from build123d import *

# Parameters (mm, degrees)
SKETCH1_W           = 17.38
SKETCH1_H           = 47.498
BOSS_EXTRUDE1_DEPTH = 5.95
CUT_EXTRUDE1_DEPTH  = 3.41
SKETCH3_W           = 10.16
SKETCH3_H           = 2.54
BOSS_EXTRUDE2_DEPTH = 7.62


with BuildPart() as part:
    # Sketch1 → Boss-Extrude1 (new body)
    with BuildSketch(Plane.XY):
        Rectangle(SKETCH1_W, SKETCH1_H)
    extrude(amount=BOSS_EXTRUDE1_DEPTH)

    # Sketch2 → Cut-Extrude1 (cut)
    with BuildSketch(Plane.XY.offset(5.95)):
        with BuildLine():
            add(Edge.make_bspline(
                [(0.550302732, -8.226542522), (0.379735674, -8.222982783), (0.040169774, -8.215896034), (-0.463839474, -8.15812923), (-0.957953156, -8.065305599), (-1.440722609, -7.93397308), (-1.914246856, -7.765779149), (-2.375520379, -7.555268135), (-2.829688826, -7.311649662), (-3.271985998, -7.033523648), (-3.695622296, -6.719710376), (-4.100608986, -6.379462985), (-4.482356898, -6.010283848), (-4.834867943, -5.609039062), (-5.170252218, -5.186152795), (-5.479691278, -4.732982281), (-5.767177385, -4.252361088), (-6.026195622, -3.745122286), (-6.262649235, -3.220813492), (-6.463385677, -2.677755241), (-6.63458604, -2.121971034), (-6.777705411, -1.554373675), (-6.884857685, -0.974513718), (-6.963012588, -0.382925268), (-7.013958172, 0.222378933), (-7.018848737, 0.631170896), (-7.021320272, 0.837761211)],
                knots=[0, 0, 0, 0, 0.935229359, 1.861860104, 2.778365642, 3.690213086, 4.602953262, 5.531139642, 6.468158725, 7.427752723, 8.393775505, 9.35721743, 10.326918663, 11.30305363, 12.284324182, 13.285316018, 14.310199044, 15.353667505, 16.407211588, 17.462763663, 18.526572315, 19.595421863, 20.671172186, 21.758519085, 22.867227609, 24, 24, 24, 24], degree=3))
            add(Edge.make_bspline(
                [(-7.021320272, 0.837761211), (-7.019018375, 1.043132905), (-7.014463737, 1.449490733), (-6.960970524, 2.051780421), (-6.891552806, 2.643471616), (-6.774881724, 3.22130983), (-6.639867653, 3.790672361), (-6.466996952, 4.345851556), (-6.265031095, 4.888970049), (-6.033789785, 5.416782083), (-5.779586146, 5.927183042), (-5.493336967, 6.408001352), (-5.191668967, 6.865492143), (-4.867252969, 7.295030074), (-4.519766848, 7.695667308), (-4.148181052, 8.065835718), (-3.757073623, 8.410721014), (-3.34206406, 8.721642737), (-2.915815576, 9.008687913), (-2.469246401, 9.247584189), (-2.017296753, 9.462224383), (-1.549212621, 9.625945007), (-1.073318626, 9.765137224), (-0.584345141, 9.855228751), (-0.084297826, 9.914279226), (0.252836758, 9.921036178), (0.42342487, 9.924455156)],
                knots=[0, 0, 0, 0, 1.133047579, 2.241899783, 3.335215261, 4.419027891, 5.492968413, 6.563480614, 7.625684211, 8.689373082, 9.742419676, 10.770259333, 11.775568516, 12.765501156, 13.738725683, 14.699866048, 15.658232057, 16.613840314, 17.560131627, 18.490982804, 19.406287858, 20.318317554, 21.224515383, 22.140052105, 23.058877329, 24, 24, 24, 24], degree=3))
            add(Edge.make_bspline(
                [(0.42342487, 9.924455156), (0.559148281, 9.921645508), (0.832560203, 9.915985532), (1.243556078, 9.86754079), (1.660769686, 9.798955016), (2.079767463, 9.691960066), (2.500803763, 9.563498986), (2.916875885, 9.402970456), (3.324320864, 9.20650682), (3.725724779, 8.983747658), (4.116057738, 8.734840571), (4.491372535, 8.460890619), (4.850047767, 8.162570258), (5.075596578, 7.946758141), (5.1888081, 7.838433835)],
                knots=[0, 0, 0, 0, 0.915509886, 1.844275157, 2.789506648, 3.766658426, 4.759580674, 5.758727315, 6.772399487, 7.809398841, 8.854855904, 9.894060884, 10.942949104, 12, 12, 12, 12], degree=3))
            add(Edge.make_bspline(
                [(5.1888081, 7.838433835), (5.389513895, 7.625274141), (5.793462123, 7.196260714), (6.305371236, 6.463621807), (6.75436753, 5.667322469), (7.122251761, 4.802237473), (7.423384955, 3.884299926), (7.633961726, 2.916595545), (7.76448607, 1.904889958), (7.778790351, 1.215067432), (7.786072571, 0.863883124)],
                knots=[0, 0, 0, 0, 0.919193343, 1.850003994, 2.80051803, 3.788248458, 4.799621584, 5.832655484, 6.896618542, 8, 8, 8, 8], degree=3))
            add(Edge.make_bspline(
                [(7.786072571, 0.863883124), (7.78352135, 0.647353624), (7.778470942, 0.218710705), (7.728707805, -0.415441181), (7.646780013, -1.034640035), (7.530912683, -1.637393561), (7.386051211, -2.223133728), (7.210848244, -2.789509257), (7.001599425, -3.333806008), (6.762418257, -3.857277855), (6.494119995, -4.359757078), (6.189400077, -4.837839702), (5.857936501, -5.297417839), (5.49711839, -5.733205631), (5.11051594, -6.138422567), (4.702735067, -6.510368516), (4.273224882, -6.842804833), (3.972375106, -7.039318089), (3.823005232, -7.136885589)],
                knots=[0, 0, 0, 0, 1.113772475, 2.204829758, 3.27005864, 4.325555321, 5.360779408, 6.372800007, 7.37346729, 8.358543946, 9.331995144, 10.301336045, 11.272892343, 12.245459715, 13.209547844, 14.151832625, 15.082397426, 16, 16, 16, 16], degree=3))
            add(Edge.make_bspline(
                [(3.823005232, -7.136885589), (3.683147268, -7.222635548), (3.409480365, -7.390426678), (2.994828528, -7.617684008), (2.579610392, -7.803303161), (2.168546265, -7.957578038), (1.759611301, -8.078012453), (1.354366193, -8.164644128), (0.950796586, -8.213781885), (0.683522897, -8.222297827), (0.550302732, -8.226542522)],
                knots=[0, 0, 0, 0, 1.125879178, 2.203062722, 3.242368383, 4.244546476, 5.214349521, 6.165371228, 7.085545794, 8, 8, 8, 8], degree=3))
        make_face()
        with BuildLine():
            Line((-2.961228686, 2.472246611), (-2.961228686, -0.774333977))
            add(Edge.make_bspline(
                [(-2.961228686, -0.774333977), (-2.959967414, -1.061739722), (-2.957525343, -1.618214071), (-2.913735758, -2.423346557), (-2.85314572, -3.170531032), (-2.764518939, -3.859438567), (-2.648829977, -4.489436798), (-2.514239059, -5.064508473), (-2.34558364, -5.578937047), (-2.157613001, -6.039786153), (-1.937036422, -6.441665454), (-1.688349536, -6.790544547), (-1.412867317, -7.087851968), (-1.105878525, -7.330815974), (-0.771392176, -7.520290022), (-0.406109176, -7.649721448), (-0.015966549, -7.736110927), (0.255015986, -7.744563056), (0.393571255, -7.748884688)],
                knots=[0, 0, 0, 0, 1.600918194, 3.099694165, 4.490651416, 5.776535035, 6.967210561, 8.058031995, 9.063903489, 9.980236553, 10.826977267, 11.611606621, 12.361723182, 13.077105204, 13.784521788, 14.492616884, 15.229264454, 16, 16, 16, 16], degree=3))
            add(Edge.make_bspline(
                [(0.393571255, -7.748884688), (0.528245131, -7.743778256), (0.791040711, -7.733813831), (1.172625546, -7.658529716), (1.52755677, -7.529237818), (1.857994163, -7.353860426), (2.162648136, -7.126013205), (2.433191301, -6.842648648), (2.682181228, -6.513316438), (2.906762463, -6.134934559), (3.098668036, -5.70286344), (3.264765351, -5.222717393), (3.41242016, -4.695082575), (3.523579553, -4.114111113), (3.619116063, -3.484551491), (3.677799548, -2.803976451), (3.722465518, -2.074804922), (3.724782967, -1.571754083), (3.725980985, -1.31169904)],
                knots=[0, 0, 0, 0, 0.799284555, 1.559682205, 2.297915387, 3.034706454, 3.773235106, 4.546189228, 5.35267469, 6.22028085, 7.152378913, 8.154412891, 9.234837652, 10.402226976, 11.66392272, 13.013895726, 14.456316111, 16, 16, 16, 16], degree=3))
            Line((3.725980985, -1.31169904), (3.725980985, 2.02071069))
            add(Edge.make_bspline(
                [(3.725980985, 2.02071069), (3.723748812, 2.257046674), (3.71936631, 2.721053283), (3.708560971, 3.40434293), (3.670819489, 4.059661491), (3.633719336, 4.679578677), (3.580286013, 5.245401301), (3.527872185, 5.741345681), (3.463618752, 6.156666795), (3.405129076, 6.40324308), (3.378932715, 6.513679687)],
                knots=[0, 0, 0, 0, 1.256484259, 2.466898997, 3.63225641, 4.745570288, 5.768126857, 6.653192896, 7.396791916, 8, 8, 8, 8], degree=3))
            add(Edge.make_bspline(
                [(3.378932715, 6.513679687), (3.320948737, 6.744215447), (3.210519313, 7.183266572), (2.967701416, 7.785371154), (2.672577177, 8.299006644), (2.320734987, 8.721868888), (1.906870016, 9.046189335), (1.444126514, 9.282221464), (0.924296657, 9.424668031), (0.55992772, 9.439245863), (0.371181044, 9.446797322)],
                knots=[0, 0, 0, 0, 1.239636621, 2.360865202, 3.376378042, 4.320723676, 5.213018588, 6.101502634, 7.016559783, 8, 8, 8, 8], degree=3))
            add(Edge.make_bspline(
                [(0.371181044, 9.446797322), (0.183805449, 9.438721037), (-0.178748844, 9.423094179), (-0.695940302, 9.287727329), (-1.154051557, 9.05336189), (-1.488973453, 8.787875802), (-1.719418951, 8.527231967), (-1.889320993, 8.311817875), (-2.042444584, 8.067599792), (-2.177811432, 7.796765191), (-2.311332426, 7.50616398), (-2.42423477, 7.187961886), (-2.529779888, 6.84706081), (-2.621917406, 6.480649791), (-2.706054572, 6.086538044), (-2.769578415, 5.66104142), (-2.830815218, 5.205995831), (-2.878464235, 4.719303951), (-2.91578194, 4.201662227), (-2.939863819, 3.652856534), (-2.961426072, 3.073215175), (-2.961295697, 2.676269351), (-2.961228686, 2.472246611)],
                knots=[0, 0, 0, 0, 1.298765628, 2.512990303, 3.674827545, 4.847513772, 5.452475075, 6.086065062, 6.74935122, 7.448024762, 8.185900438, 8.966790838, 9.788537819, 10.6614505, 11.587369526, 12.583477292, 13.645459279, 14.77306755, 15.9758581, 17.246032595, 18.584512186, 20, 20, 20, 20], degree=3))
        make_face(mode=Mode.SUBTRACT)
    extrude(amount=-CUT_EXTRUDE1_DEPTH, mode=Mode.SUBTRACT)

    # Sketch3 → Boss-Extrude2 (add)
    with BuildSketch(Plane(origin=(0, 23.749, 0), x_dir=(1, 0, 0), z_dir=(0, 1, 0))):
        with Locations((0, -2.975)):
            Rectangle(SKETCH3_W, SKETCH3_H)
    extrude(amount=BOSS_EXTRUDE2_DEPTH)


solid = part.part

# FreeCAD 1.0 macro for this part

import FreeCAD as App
import Part
import Sketcher
from FreeCAD import Vector
Q = App.Units.Quantity

doc = App.newDocument("Part")
body = doc.addObject("PartDesign::Body", "Body")

sketch1 = body.newObject("Sketcher::SketchObject", "Sketch")
sketch1.AttachmentSupport = (doc.getObject("XY_Plane"), [""])
sketch1.MapMode = "FlatFace"
sketch1.addGeometry([
    Part.LineSegment(Vector(-9, 24, 0), Vector(-9, -24, 0)),
    Part.LineSegment(Vector(-9, -24, 0), Vector(9, -24, 0)),
    Part.LineSegment(Vector(9, -24, 0), Vector(9, 24, 0)),
    Part.LineSegment(Vector(9, 24, 0), Vector(-9, 24, 0)),
], False)
sketch1.addConstraint([
    Sketcher.Constraint("Coincident", 0, 2, 1, 1),
    Sketcher.Constraint("Coincident", 1, 2, 2, 1),
    Sketcher.Constraint("Coincident", 2, 2, 3, 1),
    Sketcher.Constraint("Coincident", 3, 2, 0, 1),
    Sketcher.Constraint("Vertical", 0),
    Sketcher.Constraint("Horizontal", 1),
    Sketcher.Constraint("Vertical", 2),
    Sketcher.Constraint("Horizontal", 3),
    Sketcher.Constraint("Symmetric", 0, 2, 2, 2, -1, 1),
    Sketcher.Constraint("DistanceY", 0, 2, 0, 1, Q("1.87 in")),
    Sketcher.Constraint("DistanceX", 1, 1, 1, 2, Q("17.38 mm")),
])
pad1 = body.newObject("PartDesign::Pad", "Pad")
pad1.Profile = sketch1
pad1.Length = 5.95

sketch2 = body.newObject("Sketcher::SketchObject", "Sketch001")
sketch2.AttachmentSupport = (doc.getObject("XY_Plane"), [""])
sketch2.MapMode = "FlatFace"
sketch2.AttachmentOffset = App.Placement(Vector(0, 0, 5.95), App.Rotation())
sketch2.addGeometry([
    Part.BSplineCurve([Vector(0.550303, -8.226543, 0), Vector(0.379736, -8.222983, 0), Vector(0.04017, -8.215896, 0), Vector(-0.463839, -8.158129, 0), Vector(-0.957953, -8.065306, 0), Vector(-1.440723, -7.933973, 0), Vector(-1.914247, -7.765779, 0), Vector(-2.37552, -7.555268, 0), Vector(-2.829689, -7.31165, 0), Vector(-3.271986, -7.033524, 0), Vector(-3.695622, -6.71971, 0), Vector(-4.100609, -6.379463, 0), Vector(-4.482357, -6.010284, 0), Vector(-4.834868, -5.609039, 0), Vector(-5.170252, -5.186153, 0), Vector(-5.479691, -4.732982, 0), Vector(-5.767177, -4.252361, 0), Vector(-6.026196, -3.745122, 0), Vector(-6.262649, -3.220813, 0), Vector(-6.463386, -2.677755, 0), Vector(-6.634586, -2.121971, 0), Vector(-6.777705, -1.554374, 0), Vector(-6.884858, -0.974514, 0), Vector(-6.963013, -0.382925, 0), Vector(-7.013958, 0.222379, 0), Vector(-7.018849, 0.631171, 0), Vector(-7.02132, 0.837761, 0)], [4, 1, 1, 1, 1, 1, 1, 1, 1, 1, 1, 1, 1, 1, 1, 1, 1, 1, 1, 1, 1, 1, 1, 1, 4], [0, 0.935229359, 1.861860104, 2.778365642, 3.690213086, 4.602953262, 5.531139642, 6.468158725, 7.427752723, 8.393775505, 9.35721743, 10.326918663, 11.30305363, 12.284324182, 13.285316018, 14.310199044, 15.353667505, 16.407211588, 17.462763663, 18.526572315, 19.595421863, 20.671172186, 21.758519085, 22.867227609, 24], False, 3, [1, 1, 1, 1, 1, 1, 1, 1, 1, 1, 1, 1, 1, 1, 1, 1, 1, 1, 1, 1, 1, 1, 1, 1, 1, 1, 1], False),
    Part.BSplineCurve([Vector(3.823005, -7.136886, 0), Vector(3.683147, -7.222636, 0), Vector(3.40948, -7.390427, 0), Vector(2.994829, -7.617684, 0), Vector(2.57961, -7.803303, 0), Vector(2.168546, -7.957578, 0), Vector(1.759611, -8.078012, 0), Vector(1.354366, -8.164644, 0), Vector(0.950797, -8.213782, 0), Vector(0.683523, -8.222298, 0), Vector(0.550303, -8.226543, 0)], [4, 1, 1, 1, 1, 1, 1, 1, 4], [0, 1.125879178, 2.203062722, 3.242368383, 4.244546476, 5.214349521, 6.165371228, 7.085545794, 8], False, 3, [1, 1, 1, 1, 1, 1, 1, 1, 1, 1, 1], False),
    Part.BSplineCurve([Vector(7.786073, 0.863883, 0), Vector(7.783521, 0.647354, 0), Vector(7.778471, 0.218711, 0), Vector(7.728708, -0.415441, 0), Vector(7.64678, -1.03464, 0), Vector(7.530913, -1.637394, 0), Vector(7.386051, -2.223134, 0), Vector(7.210848, -2.789509, 0), Vector(7.001599, -3.333806, 0), Vector(6.762418, -3.857278, 0), Vector(6.49412, -4.359757, 0), Vector(6.1894, -4.83784, 0), Vector(5.857937, -5.297418, 0), Vector(5.497118, -5.733206, 0), Vector(5.110516, -6.138423, 0), Vector(4.702735, -6.510369, 0), Vector(4.273225, -6.842805, 0), Vector(3.972375, -7.039318, 0), Vector(3.823005, -7.136886, 0)], [4, 1, 1, 1, 1, 1, 1, 1, 1, 1, 1, 1, 1, 1, 1, 1, 4], [0, 1.113772475, 2.204829758, 3.27005864, 4.325555321, 5.360779408, 6.372800007, 7.37346729, 8.358543946, 9.331995144, 10.301336045, 11.272892343, 12.245459715, 13.209547844, 14.151832625, 15.082397426, 16], False, 3, [1, 1, 1, 1, 1, 1, 1, 1, 1, 1, 1, 1, 1, 1, 1, 1, 1, 1, 1], False),
    Part.BSplineCurve([Vector(5.188808, 7.838434, 0), Vector(5.389514, 7.625274, 0), Vector(5.793462, 7.196261, 0), Vector(6.305371, 6.463622, 0), Vector(6.754368, 5.667322, 0), Vector(7.122252, 4.802237, 0), Vector(7.423385, 3.8843, 0), Vector(7.633962, 2.916596, 0), Vector(7.764486, 1.90489, 0), Vector(7.77879, 1.215067, 0), Vector(7.786073, 0.863883, 0)], [4, 1, 1, 1, 1, 1, 1, 1, 4], [0, 0.919193343, 1.850003994, 2.80051803, 3.788248458, 4.799621584, 5.832655484, 6.896618542, 8], False, 3, [1, 1, 1, 1, 1, 1, 1, 1, 1, 1, 1], False),
    Part.BSplineCurve([Vector(0.423425, 9.924455, 0), Vector(0.559148, 9.921646, 0), Vector(0.83256, 9.915986, 0), Vector(1.243556, 9.867541, 0), Vector(1.66077, 9.798955, 0), Vector(2.079767, 9.69196, 0), Vector(2.500804, 9.563499, 0), Vector(2.916876, 9.40297, 0), Vector(3.324321, 9.206507, 0), Vector(3.725725, 8.983748, 0), Vector(4.116058, 8.734841, 0), Vector(4.491373, 8.460891, 0), Vector(4.850048, 8.16257, 0), Vector(5.075597, 7.946758, 0), Vector(5.188808, 7.838434, 0)], [4, 1, 1, 1, 1, 1, 1, 1, 1, 1, 1, 1, 4], [0, 0.915509886, 1.844275157, 2.789506648, 3.766658426, 4.759580674, 5.758727315, 6.772399487, 7.809398841, 8.854855904, 9.894060884, 10.942949104, 12], False, 3, [1, 1, 1, 1, 1, 1, 1, 1, 1, 1, 1, 1, 1, 1, 1], False),
    Part.BSplineCurve([Vector(-7.02132, 0.837761, 0), Vector(-7.019018, 1.043133, 0), Vector(-7.014464, 1.449491, 0), Vector(-6.960971, 2.05178, 0), Vector(-6.891553, 2.643472, 0), Vector(-6.774882, 3.22131, 0), Vector(-6.639868, 3.790672, 0), Vector(-6.466997, 4.345852, 0), Vector(-6.265031, 4.88897, 0), Vector(-6.03379, 5.416782, 0), Vector(-5.779586, 5.927183, 0), Vector(-5.493337, 6.408001, 0), Vector(-5.191669, 6.865492, 0), Vector(-4.867253, 7.29503, 0), Vector(-4.519767, 7.695667, 0), Vector(-4.148181, 8.065836, 0), Vector(-3.757074, 8.410721, 0), Vector(-3.342064, 8.721643, 0), Vector(-2.915816, 9.008688, 0), Vector(-2.469246, 9.247584, 0), Vector(-2.017297, 9.462224, 0), Vector(-1.549213, 9.625945, 0), Vector(-1.073319, 9.765137, 0), Vector(-0.584345, 9.855229, 0), Vector(-0.084298, 9.914279, 0), Vector(0.252837, 9.921036, 0), Vector(0.423425, 9.924455, 0)], [4, 1, 1, 1, 1, 1, 1, 1, 1, 1, 1, 1, 1, 1, 1, 1, 1, 1, 1, 1, 1, 1, 1, 1, 4], [0, 1.133047579, 2.241899783, 3.335215261, 4.419027891, 5.492968413, 6.563480614, 7.625684211, 8.689373082, 9.742419676, 10.770259333, 11.775568516, 12.765501156, 13.738725683, 14.699866048, 15.658232057, 16.613840314, 17.560131627, 18.490982804, 19.406287858, 20.318317554, 21.224515383, 22.140052105, 23.058877329, 24], False, 3, [1, 1, 1, 1, 1, 1, 1, 1, 1, 1, 1, 1, 1, 1, 1, 1, 1, 1, 1, 1, 1, 1, 1, 1, 1, 1, 1], False),
    Part.BSplineCurve([Vector(0.371181, 9.446797, 0), Vector(0.183805, 9.438721, 0), Vector(-0.178749, 9.423094, 0), Vector(-0.69594, 9.287727, 0), Vector(-1.154052, 9.053362, 0), Vector(-1.488973, 8.787876, 0), Vector(-1.719419, 8.527232, 0), Vector(-1.889321, 8.311818, 0), Vector(-2.042445, 8.0676, 0), Vector(-2.177811, 7.796765, 0), Vector(-2.311332, 7.506164, 0), Vector(-2.424235, 7.187962, 0), Vector(-2.52978, 6.847061, 0), Vector(-2.621917, 6.48065, 0), Vector(-2.706055, 6.086538, 0), Vector(-2.769578, 5.661041, 0), Vector(-2.830815, 5.205996, 0), Vector(-2.878464, 4.719304, 0), Vector(-2.915782, 4.201662, 0), Vector(-2.939864, 3.652857, 0), Vector(-2.961426, 3.073215, 0), Vector(-2.961296, 2.676269, 0), Vector(-2.961229, 2.472247, 0)], [4, 1, 1, 1, 1, 1, 1, 1, 1, 1, 1, 1, 1, 1, 1, 1, 1, 1, 1, 1, 4], [0, 1.298765628, 2.512990303, 3.674827545, 4.847513772, 5.452475075, 6.086065062, 6.74935122, 7.448024762, 8.185900438, 8.966790838, 9.788537819, 10.6614505, 11.587369526, 12.583477292, 13.645459279, 14.77306755, 15.9758581, 17.246032595, 18.584512186, 20], False, 3, [1, 1, 1, 1, 1, 1, 1, 1, 1, 1, 1, 1, 1, 1, 1, 1, 1, 1, 1, 1, 1, 1, 1], False),
    Part.BSplineCurve([Vector(3.378933, 6.51368, 0), Vector(3.320949, 6.744215, 0), Vector(3.210519, 7.183267, 0), Vector(2.967701, 7.785371, 0), Vector(2.672577, 8.299007, 0), Vector(2.320735, 8.721869, 0), Vector(1.90687, 9.046189, 0), Vector(1.444127, 9.282221, 0), Vector(0.924297, 9.424668, 0), Vector(0.559928, 9.439246, 0), Vector(0.371181, 9.446797, 0)], [4, 1, 1, 1, 1, 1, 1, 1, 4], [0, 1.239636621, 2.360865202, 3.376378042, 4.320723676, 5.213018588, 6.101502634, 7.016559783, 8], False, 3, [1, 1, 1, 1, 1, 1, 1, 1, 1, 1, 1], False),
    Part.BSplineCurve([Vector(3.725981, 2.020711, 0), Vector(3.723749, 2.257047, 0), Vector(3.719366, 2.721053, 0), Vector(3.708561, 3.404343, 0), Vector(3.670819, 4.059661, 0), Vector(3.633719, 4.679579, 0), Vector(3.580286, 5.245401, 0), Vector(3.527872, 5.741346, 0), Vector(3.463619, 6.156667, 0), Vector(3.405129, 6.403243, 0), Vector(3.378933, 6.51368, 0)], [4, 1, 1, 1, 1, 1, 1, 1, 4], [0, 1.256484259, 2.466898997, 3.63225641, 4.745570288, 5.768126857, 6.653192896, 7.396791916, 8], False, 3, [1, 1, 1, 1, 1, 1, 1, 1, 1, 1, 1], False),
    Part.LineSegment(Vector(3.725981, 2.020711, 0), Vector(3.725981, -1.311699, 0)),
    Part.BSplineCurve([Vector(0.393571, -7.748885, 0), Vector(0.528245, -7.743778, 0), Vector(0.791041, -7.733814, 0), Vector(1.172626, -7.65853, 0), Vector(1.527557, -7.529238, 0), Vector(1.857994, -7.35386, 0), Vector(2.162648, -7.126013, 0), Vector(2.433191, -6.842649, 0), Vector(2.682181, -6.513316, 0), Vector(2.906762, -6.134935, 0), Vector(3.098668, -5.702863, 0), Vector(3.264765, -5.222717, 0), Vector(3.41242, -4.695083, 0), Vector(3.52358, -4.114111, 0), Vector(3.619116, -3.484551, 0), Vector(3.6778, -2.803976, 0), Vector(3.722466, -2.074805, 0), Vector(3.724783, -1.571754, 0), Vector(3.725981, -1.311699, 0)], [4, 1, 1, 1, 1, 1, 1, 1, 1, 1, 1, 1, 1, 1, 1, 1, 4], [0, 0.799284555, 1.559682205, 2.297915387, 3.034706454, 3.773235106, 4.546189228, 5.35267469, 6.22028085, 7.152378913, 8.154412891, 9.234837652, 10.402226976, 11.66392272, 13.013895726, 14.456316111, 16], False, 3, [1, 1, 1, 1, 1, 1, 1, 1, 1, 1, 1, 1, 1, 1, 1, 1, 1, 1, 1], False),
    Part.BSplineCurve([Vector(-2.961229, -0.774334, 0), Vector(-2.959967, -1.06174, 0), Vector(-2.957525, -1.618214, 0), Vector(-2.913736, -2.423347, 0), Vector(-2.853146, -3.170531, 0), Vector(-2.764519, -3.859439, 0), Vector(-2.64883, -4.489437, 0), Vector(-2.514239, -5.064508, 0), Vector(-2.345584, -5.578937, 0), Vector(-2.157613, -6.039786, 0), Vector(-1.937036, -6.441665, 0), Vector(-1.68835, -6.790545, 0), Vector(-1.412867, -7.087852, 0), Vector(-1.105879, -7.330816, 0), Vector(-0.771392, -7.52029, 0), Vector(-0.406109, -7.649721, 0), Vector(-0.015967, -7.736111, 0), Vector(0.255016, -7.744563, 0), Vector(0.393571, -7.748885, 0)], [4, 1, 1, 1, 1, 1, 1, 1, 1, 1, 1, 1, 1, 1, 1, 1, 4], [0, 1.600918194, 3.099694165, 4.490651416, 5.776535035, 6.967210561, 8.058031995, 9.063903489, 9.980236553, 10.826977267, 11.611606621, 12.361723182, 13.077105204, 13.784521788, 14.492616884, 15.229264454, 16], False, 3, [1, 1, 1, 1, 1, 1, 1, 1, 1, 1, 1, 1, 1, 1, 1, 1, 1, 1, 1], False),
    Part.LineSegment(Vector(-2.961229, -0.774334, 0), Vector(-2.961229, 2.472247, 0)),
], False)
sketch2.addConstraint([
    Sketcher.Constraint("Block", 0),
    Sketcher.Constraint("Block", 1),
    Sketcher.Constraint("Block", 2),
    Sketcher.Constraint("Block", 3),
    Sketcher.Constraint("Block", 4),
    Sketcher.Constraint("Block", 5),
    Sketcher.Constraint("Block", 6),
    Sketcher.Constraint("Block", 7),
    Sketcher.Constraint("Block", 8),
    Sketcher.Constraint("Block", 10),
    Sketcher.Constraint("Block", 11),
    Sketcher.Constraint("Coincident", 8, 1, 9, 1),
    Sketcher.Constraint("Coincident", 9, 2, 10, 2),
    Sketcher.Constraint("Coincident", 11, 1, 12, 1),
    Sketcher.Constraint("Coincident", 12, 2, 6, 2),
])
pocket1 = body.newObject("PartDesign::Pocket", "Pocket")
pocket1.Profile = sketch2
pocket1.Length = 3.41

sketch3 = body.newObject("Sketcher::SketchObject", "Sketch002")
sketch3.AttachmentSupport = (doc.getObject("XZ_Plane"), [""])
sketch3.MapMode = "FlatFace"
sketch3.AttachmentOffset = App.Placement(Vector(0, 0, -0.935 * 25.4), App.Rotation())
sketch3.addGeometry([
    Part.LineSegment(Vector(-5.1, 1.7, 0), Vector(-5.1, 4.2, 0)),
    Part.LineSegment(Vector(-5.1, 4.2, 0), Vector(5.1, 4.2, 0)),
    Part.LineSegment(Vector(5.1, 4.2, 0), Vector(5.1, 1.7, 0)),
    Part.LineSegment(Vector(5.1, 1.7, 0), Vector(-5.1, 1.7, 0)),
], False)
sketch3.addConstraint([
    Sketcher.Constraint("Coincident", 0, 2, 1, 1),
    Sketcher.Constraint("Coincident", 1, 2, 2, 1),
    Sketcher.Constraint("Coincident", 2, 2, 3, 1),
    Sketcher.Constraint("Coincident", 3, 2, 0, 1),
    Sketcher.Constraint("Vertical", 0),
    Sketcher.Constraint("Horizontal", 1),
    Sketcher.Constraint("Vertical", 2),
    Sketcher.Constraint("Horizontal", 3),
    Sketcher.Constraint("DistanceX", 1, 1, 1, 2, Q("0.4 in")),
    Sketcher.Constraint("DistanceY", 0, 1, 0, 2, Q("0.1 in")),
    Sketcher.Constraint("DistanceX", 0, 2, -1, 1, Q("0.2 in")),
    Sketcher.Constraint("DistanceY", -1, 1, 0, 2, Q("4.245 mm")),
])
pad2 = body.newObject("PartDesign::Pad", "Pad001")
pad2.Profile = sketch3
pad2.Length = Q("0.3 in")
pad2.Reversed = True

doc.recompute()
